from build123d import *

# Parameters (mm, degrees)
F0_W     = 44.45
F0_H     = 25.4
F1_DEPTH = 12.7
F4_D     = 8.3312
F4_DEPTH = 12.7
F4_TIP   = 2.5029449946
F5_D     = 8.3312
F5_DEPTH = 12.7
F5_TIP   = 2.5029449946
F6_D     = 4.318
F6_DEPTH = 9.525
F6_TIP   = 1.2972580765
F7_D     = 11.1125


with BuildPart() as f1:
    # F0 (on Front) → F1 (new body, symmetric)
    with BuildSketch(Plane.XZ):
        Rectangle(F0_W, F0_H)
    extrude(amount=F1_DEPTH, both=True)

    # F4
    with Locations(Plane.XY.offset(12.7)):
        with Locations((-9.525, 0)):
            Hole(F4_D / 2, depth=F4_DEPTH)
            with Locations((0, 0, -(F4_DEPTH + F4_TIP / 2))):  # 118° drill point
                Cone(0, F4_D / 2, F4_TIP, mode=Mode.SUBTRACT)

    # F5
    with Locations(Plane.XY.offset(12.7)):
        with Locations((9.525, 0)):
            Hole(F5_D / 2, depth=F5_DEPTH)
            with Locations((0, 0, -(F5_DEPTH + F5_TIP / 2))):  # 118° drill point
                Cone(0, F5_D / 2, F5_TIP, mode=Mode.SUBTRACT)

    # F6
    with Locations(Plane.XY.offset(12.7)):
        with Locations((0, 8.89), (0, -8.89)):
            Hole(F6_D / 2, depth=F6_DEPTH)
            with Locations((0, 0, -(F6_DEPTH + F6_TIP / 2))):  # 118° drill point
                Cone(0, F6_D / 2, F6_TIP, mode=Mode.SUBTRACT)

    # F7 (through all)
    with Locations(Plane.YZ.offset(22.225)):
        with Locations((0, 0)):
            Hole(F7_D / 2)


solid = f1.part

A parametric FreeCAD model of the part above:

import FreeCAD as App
import Part
import Sketcher
from FreeCAD import Vector
Q = App.Units.Quantity

doc = App.newDocument("Part")
params = doc.addObject("Spreadsheet::Sheet", "Params")
for row, (alias, value) in enumerate([
    ("sketch1_height", "1 in"),
    ("sketch1_width", "1.75 in"),
    ("pad1_length", "1 in"),
    ("sketch2_diameter", "0.328 in"),
    ("hole_diameter", "0.328 in"),
    ("hole_depth", "0.5 in"),
    ("sketch3_diameter", "0.328 in"),
    ("hole2_diameter", "0.328 in"),
    ("hole2_depth", "0.5 in"),
    ("sketch4_diameter", "0.17 in"),
    ("hole3_diameter", "0.17 in"),
    ("hole3_depth", "0.375 in"),
    ("sketch5_diameter", "0.4375 in"),
    ("hole4_diameter", "0.4375 in"),
], start=1):
    params.set(f"A{row}", alias)
    params.set(f"B{row}", "=" + value)
    params.setAlias(f"B{row}", alias)

body = doc.addObject("PartDesign::Body", "Body")

# Sketch on XZ plane
sketch1 = body.newObject("Sketcher::SketchObject", "Sketch")
sketch1.AttachmentSupport = (doc.getObject("XZ_Plane"), [""])
sketch1.MapMode = "FlatFace"
sketch1.addGeometry([
    Part.LineSegment(Vector(-22, 13, 0), Vector(-22, -13, 0)),
    Part.LineSegment(Vector(-22, -13, 0), Vector(22, -13, 0)),
    Part.LineSegment(Vector(22, -13, 0), Vector(22, 13, 0)),
    Part.LineSegment(Vector(22, 13, 0), Vector(-22, 13, 0)),
], False)
sketch1.addConstraint([
    Sketcher.Constraint("Coincident", 0, 2, 1, 1),
    Sketcher.Constraint("Coincident", 1, 2, 2, 1),
    Sketcher.Constraint("Coincident", 2, 2, 3, 1),
    Sketcher.Constraint("Coincident", 3, 2, 0, 1),
    Sketcher.Constraint("Vertical", 0),
    Sketcher.Constraint("Horizontal", 1),
    Sketcher.Constraint("Vertical", 2),
    Sketcher.Constraint("Horizontal", 3),
    Sketcher.Constraint("Symmetric", 0, 2, 2, 2, -1, 1),
    Sketcher.Constraint("DistanceY", 0, 2, 0, 1, Q("1 in")),
    Sketcher.Constraint("DistanceX", 1, 1, 1, 2, Q("1.75 in")),
])
sketch1.setExpression("Constraints[9]", "Params.sketch1_height")
sketch1.setExpression("Constraints[10]", "Params.sketch1_width")
pad1 = body.newObject("PartDesign::Pad", "Pad")
pad1.Profile = sketch1
pad1.setExpression("Length", "Params.pad1_length")
pad1.Midplane = True

# Sketch on XY plane
sketch2 = body.newObject("Sketcher::SketchObject", "Sketch001")
sketch2.AttachmentSupport = (doc.getObject("XY_Plane"), [""])
sketch2.MapMode = "FlatFace"
sketch2.AttachmentOffset = App.Placement(Vector(0, 0, 0.5 * 25.4), App.Rotation())
sketch2.addGeometry(Part.Circle(Vector(-9.5, 0, 0), Vector(0, 0, 1), 4.2), False)
sketch2.addConstraint([
    Sketcher.Constraint("PointOnObject", 0, 3, -1),
    Sketcher.Constraint("Diameter", 0, Q("0.328 in")),
    Sketcher.Constraint("DistanceX", 0, 3, -1, 1, Q("0.375 in")),
])
sketch2.setExpression("Constraints[1]", "Params.sketch2_diameter")
doc.recompute()
hole = body.newObject("PartDesign::Hole", "Hole")
hole.Profile = sketch2
hole.ThreadType = "None"
hole.setExpression("Diameter", "Params.hole_diameter")
hole.DepthType = "Dimension"
hole.setExpression("Depth", "Params.hole_depth")
hole.DrillPoint = "Angled"
hole.DrillPointAngle = 118

# Sketch on XY plane
sketch3 = body.newObject("Sketcher::SketchObject", "Sketch002")
sketch3.AttachmentSupport = (doc.getObject("XY_Plane"), [""])
sketch3.MapMode = "FlatFace"
sketch3.AttachmentOffset = App.Placement(Vector(0, 0, 0.5 * 25.4), App.Rotation())
sketch3.addGeometry(Part.Circle(Vector(9.5, 0, 0), Vector(0, 0, 1), 4.2), False)
sketch3.addConstraint([
    Sketcher.Constraint("PointOnObject", 0, 3, -1),
    Sketcher.Constraint("Diameter", 0, Q("0.328 in")),
    Sketcher.Constraint("DistanceX", -1, 1, 0, 3, Q("0.375 in")),
])
sketch3.setExpression("Constraints[1]", "Params.sketch3_diameter")
doc.recompute()
hole2 = body.newObject("PartDesign::Hole", "Hole001")
hole2.Profile = sketch3
hole2.ThreadType = "None"
hole2.setExpression("Diameter", "Params.hole2_diameter")
hole2.DepthType = "Dimension"
hole2.setExpression("Depth", "Params.hole2_depth")
hole2.DrillPoint = "Angled"
hole2.DrillPointAngle = 118

# Sketch on XY plane
sketch4 = body.newObject("Sketcher::SketchObject", "Sketch003")
sketch4.AttachmentSupport = (doc.getObject("XY_Plane"), [""])
sketch4.MapMode = "FlatFace"
sketch4.AttachmentOffset = App.Placement(Vector(0, 0, 0.5 * 25.4), App.Rotation())
sketch4.addGeometry([
    Part.Circle(Vector(0, 8.9, 0), Vector(0, 0, 1), 2.2),
    Part.Circle(Vector(0, -8.9, 0), Vector(0, 0, 1), 2.2),
], False)
sketch4.addConstraint([
    Sketcher.Constraint("Equal", 0, 1),
    Sketcher.Constraint("Symmetric", 0, 3, 1, 3, -1, 1),
    Sketcher.Constraint("PointOnObject", 0, 3, -2),
    Sketcher.Constraint("Diameter", 0, Q("0.17 in")),
    Sketcher.Constraint("DistanceY", 1, 3, 0, 3, Q("0.7 in")),
])
sketch4.setExpression("Constraints[3]", "Params.sketch4_diameter")
doc.recompute()
hole3 = body.newObject("PartDesign::Hole", "Hole002")
hole3.Profile = sketch4
hole3.ThreadType = "None"
hole3.setExpression("Diameter", "Params.hole3_diameter")
hole3.DepthType = "Dimension"
hole3.setExpression("Depth", "Params.hole3_depth")
hole3.DrillPoint = "Angled"
hole3.DrillPointAngle = 118

# Sketch on YZ plane
sketch5 = body.newObject("Sketcher::SketchObject", "Sketch004")
sketch5.AttachmentSupport = (doc.getObject("YZ_Plane"), [""])
sketch5.MapMode = "FlatFace"
sketch5.AttachmentOffset = App.Placement(Vector(0, 0, 0.875 * 25.4), App.Rotation())
sketch5.addGeometry(Part.Circle(Vector(0, 0, 0), Vector(0, 0, 1), 6), False)
sketch5.addConstraint([
    Sketcher.Constraint("Coincident", 0, 3, -1, 1),
    Sketcher.Constraint("Diameter", 0, Q("0.4375 in")),
])
sketch5.setExpression("Constraints[1]", "Params.sketch5_diameter")
doc.recompute()
hole4 = body.newObject("PartDesign::Hole", "Hole003")
hole4.Profile = sketch5
hole4.ThreadType = "None"
hole4.setExpression("Diameter", "Params.hole4_diameter")
hole4.DepthType = "ThroughAll"

doc.recompute()
